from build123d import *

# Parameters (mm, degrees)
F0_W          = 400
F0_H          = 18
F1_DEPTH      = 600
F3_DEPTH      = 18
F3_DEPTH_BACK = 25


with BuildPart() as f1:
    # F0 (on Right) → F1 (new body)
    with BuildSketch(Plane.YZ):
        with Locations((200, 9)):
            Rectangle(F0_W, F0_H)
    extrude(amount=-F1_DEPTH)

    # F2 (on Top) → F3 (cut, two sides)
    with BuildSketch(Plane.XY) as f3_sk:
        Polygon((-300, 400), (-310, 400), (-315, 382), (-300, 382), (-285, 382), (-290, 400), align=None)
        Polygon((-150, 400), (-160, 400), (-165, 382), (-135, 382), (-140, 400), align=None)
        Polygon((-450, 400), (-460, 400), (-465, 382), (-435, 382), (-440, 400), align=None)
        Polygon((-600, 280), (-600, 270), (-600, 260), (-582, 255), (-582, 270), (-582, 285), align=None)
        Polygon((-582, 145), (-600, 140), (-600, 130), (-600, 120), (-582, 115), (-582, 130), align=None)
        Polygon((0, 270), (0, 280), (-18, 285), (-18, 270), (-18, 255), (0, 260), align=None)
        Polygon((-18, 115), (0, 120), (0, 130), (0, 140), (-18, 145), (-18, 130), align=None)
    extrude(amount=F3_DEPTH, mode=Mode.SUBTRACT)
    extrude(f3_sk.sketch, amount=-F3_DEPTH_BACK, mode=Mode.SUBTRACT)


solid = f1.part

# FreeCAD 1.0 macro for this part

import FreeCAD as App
import Part
import Sketcher

V = App.Vector

doc = App.newDocument("Part")
body = doc.addObject("PartDesign::Body", "Body")

sketch1 = doc.addObject("Sketcher::SketchObject", "Sketch")
body.addObject(sketch1)
sketch1.AttachmentSupport = (doc.YZ_Plane, [""])
sketch1.MapMode = "FlatFace"
sketch1.addGeometry([
    Part.LineSegment(V(0, 18, 0), V(0, 0, 0)),
    Part.LineSegment(V(0, 0, 0), V(400, 0, 0)),
    Part.LineSegment(V(400, 0, 0), V(400, 18, 0)),
    Part.LineSegment(V(400, 18, 0), V(0, 18, 0)),
], False)
sketch1.addConstraint([
    Sketcher.Constraint("Coincident", 0, 2, 1, 1),
    Sketcher.Constraint("Coincident", 1, 2, 2, 1),
    Sketcher.Constraint("Coincident", 2, 2, 3, 1),
    Sketcher.Constraint("Coincident", 3, 2, 0, 1),
    Sketcher.Constraint("Vertical", 0),
    Sketcher.Constraint("Horizontal", 1),
    Sketcher.Constraint("Vertical", 2),
    Sketcher.Constraint("Horizontal", 3),
    Sketcher.Constraint("Coincident", 0, 2, -1, 1),
    Sketcher.Constraint("DistanceX", 1, 1, 1, 2, 400.0),
    Sketcher.Constraint("DistanceY", 0, 2, 0, 1, 18.0),
])
pad1 = doc.addObject("PartDesign::Pad", "Pad")
body.addObject(pad1)
pad1.Profile = sketch1
pad1.Length = 600
pad1.Reversed = True

sketch2 = doc.addObject("Sketcher::SketchObject", "Sketch001")
body.addObject(sketch2)
sketch2.AttachmentSupport = (doc.XY_Plane, [""])
sketch2.MapMode = "FlatFace"
sketch2.addGeometry([
    Part.LineSegment(V(-310, 400, 0), V(-315, 382, 0)),
    Part.LineSegment(V(-315, 382, 0), V(-285, 382, 0)),
    Part.LineSegment(V(-285, 382, 0), V(-290, 400, 0)),
    Part.LineSegment(V(-290, 400, 0), V(-310, 400, 0)),
    Part.LineSegment(V(-160, 400, 0), V(-165, 382, 0)),
    Part.LineSegment(V(-165, 382, 0), V(-135, 382, 0)),
    Part.LineSegment(V(-135, 382, 0), V(-140, 400, 0)),
    Part.LineSegment(V(-140, 400, 0), V(-160, 400, 0)),
    Part.LineSegment(V(-460, 400, 0), V(-465, 382, 0)),
    Part.LineSegment(V(-465, 382, 0), V(-435, 382, 0)),
    Part.LineSegment(V(-435, 382, 0), V(-440, 400, 0)),
    Part.LineSegment(V(-440, 400, 0), V(-460, 400, 0)),
    Part.LineSegment(V(-600, 280, 0), V(-600, 260, 0)),
    Part.LineSegment(V(-600, 260, 0), V(-582, 255, 0)),
    Part.LineSegment(V(-582, 255, 0), V(-582, 285, 0)),
    Part.LineSegment(V(-582, 285, 0), V(-600, 280, 0)),
    Part.LineSegment(V(-582, 145, 0), V(-600, 140, 0)),
    Part.LineSegment(V(-600, 140, 0), V(-600, 120, 0)),
    Part.LineSegment(V(-600, 120, 0), V(-582, 115, 0)),
    Part.LineSegment(V(-582, 115, 0), V(-582, 145, 0)),
    Part.LineSegment(V(0, 280, 0), V(-18, 285, 0)),
    Part.LineSegment(V(-18, 285, 0), V(-18, 255, 0)),
    Part.LineSegment(V(-18, 255, 0), V(0, 260, 0)),
    Part.LineSegment(V(0, 260, 0), V(0, 280, 0)),
    Part.LineSegment(V(-18, 115, 0), V(0, 120, 0)),
    Part.LineSegment(V(0, 120, 0), V(0, 140, 0)),
    Part.LineSegment(V(0, 140, 0), V(-18, 145, 0)),
    Part.LineSegment(V(-18, 145, 0), V(-18, 115, 0)),
], False)
sketch2.addConstraint([
    Sketcher.Constraint("Coincident", 0, 2, 1, 1),
    Sketcher.Constraint("Coincident", 1, 2, 2, 1),
    Sketcher.Constraint("Coincident", 2, 2, 3, 1),
    Sketcher.Constraint("Coincident", 3, 2, 0, 1),
    Sketcher.Constraint("Coincident", 4, 2, 5, 1),
    Sketcher.Constraint("Coincident", 5, 2, 6, 1),
    Sketcher.Constraint("Coincident", 6, 2, 7, 1),
    Sketcher.Constraint("Coincident", 7, 2, 4, 1),
    Sketcher.Constraint("Coincident", 8, 2, 9, 1),
    Sketcher.Constraint("Coincident", 9, 2, 10, 1),
    Sketcher.Constraint("Coincident", 10, 2, 11, 1),
    Sketcher.Constraint("Coincident", 11, 2, 8, 1),
    Sketcher.Constraint("Coincident", 12, 2, 13, 1),
    Sketcher.Constraint("Coincident", 13, 2, 14, 1),
    Sketcher.Constraint("Coincident", 14, 2, 15, 1),
    Sketcher.Constraint("Coincident", 15, 2, 12, 1),
    Sketcher.Constraint("Coincident", 16, 2, 17, 1),
    Sketcher.Constraint("Coincident", 17, 2, 18, 1),
    Sketcher.Constraint("Coincident", 18, 2, 19, 1),
    Sketcher.Constraint("Coincident", 19, 2, 16, 1),
    Sketcher.Constraint("Coincident", 20, 2, 21, 1),
    Sketcher.Constraint("Coincident", 21, 2, 22, 1),
    Sketcher.Constraint("Coincident", 22, 2, 23, 1),
    Sketcher.Constraint("Coincident", 23, 2, 20, 1),
    Sketcher.Constraint("Coincident", 24, 2, 25, 1),
    Sketcher.Constraint("Coincident", 25, 2, 26, 1),
    Sketcher.Constraint("Coincident", 26, 2, 27, 1),
    Sketcher.Constraint("Coincident", 27, 2, 24, 1),
    Sketcher.Constraint("Horizontal", 1),
    Sketcher.Constraint("Horizontal", 3),
    Sketcher.Constraint("Horizontal", 5),
    Sketcher.Constraint("Horizontal", 7),
    Sketcher.Constraint("Horizontal", 9),
    Sketcher.Constraint("Horizontal", 11),
    Sketcher.Constraint("Vertical", 12),
    Sketcher.Constraint("Vertical", 14),
    Sketcher.Constraint("Vertical", 17),
    Sketcher.Constraint("Vertical", 19),
    Sketcher.Constraint("Vertical", 21),
    Sketcher.Constraint("Vertical", 23),
    Sketcher.Constraint("Vertical", 25),
    Sketcher.Constraint("Vertical", 27),
    Sketcher.Constraint("PointOnObject", 22, 2, -2),
    Sketcher.Constraint("PointOnObject", 24, 2, -2),
    Sketcher.Constraint("Parallel", 0, 4),
    Sketcher.Constraint("Parallel", 2, 6),
    Sketcher.Constraint("Parallel", 4, 8),
    Sketcher.Constraint("Parallel", 6, 10),
    Sketcher.Constraint("Perpendicular", 8, 13),
    Sketcher.Constraint("Perpendicular", 10, 15),
    Sketcher.Constraint("Parallel", 15, 16),
    Sketcher.Constraint("Parallel", 13, 18),
    Sketcher.Constraint("Parallel", 18, 20),
    Sketcher.Constraint("Parallel", 16, 22),
    Sketcher.Constraint("Parallel", 22, 24),
    Sketcher.Constraint("Parallel", 20, 26),
    Sketcher.Constraint("Horizontal", 1, 2, 4, 2),
    Sketcher.Constraint("Horizontal", 3, 2, 6, 2),
    Sketcher.Constraint("Horizontal", 5, 2, 8, 2),
    Sketcher.Constraint("Horizontal", 7, 2, 10, 2),
    Sketcher.Constraint("Horizontal", 14, 2, 20, 2),
    Sketcher.Constraint("Horizontal", 13, 2, 21, 2),
    Sketcher.Constraint("Horizontal", 12, 2, 22, 2),
    Sketcher.Constraint("Horizontal", 15, 2, 23, 2),
    Sketcher.Constraint("Horizontal", 17, 2, 24, 2),
    Sketcher.Constraint("Horizontal", 16, 2, 25, 2),
    Sketcher.Constraint("Horizontal", 19, 2, 26, 2),
    Sketcher.Constraint("Vertical", 15, 2, 16, 2),
    Sketcher.Constraint("Vertical", 14, 2, 18, 2),
    Sketcher.Constraint("Equal", 1, 5),
    Sketcher.Constraint("Equal", 5, 9),
    Sketcher.Constraint("Equal", 11, 12),
    Sketcher.Constraint("Equal", 9, 14),
    Sketcher.Constraint("Equal", 12, 17),
    Sketcher.Constraint("DistanceX", 1, 1, 1, 2, 30.0),
    Sketcher.Constraint("DistanceX", 3, 2, 3, 1, 20.0),
    Sketcher.Constraint("DistanceX", 0, 2, -1, 1, 315.0),
    Sketcher.Constraint("DistanceY", -1, 1, 0, 2, 382.0),
    Sketcher.Constraint("DistanceY", -1, 1, 2, 2, 400.0),
    Sketcher.Constraint("DistanceX", 4, 2, -1, 1, 165.0),
    Sketcher.Constraint("DistanceX", 8, 2, -1, 1, 465.0),
    Sketcher.Constraint("DistanceX", 12, 2, -1, 1, 600.0),
    Sketcher.Constraint("DistanceY", -1, 1, 12, 2, 260.0),
    Sketcher.Constraint("DistanceY", -1, 1, 16, 2, 140.0),
])
pocket1 = doc.addObject("PartDesign::Pocket", "Pocket")
body.addObject(pocket1)
pocket1.Profile = sketch2
pocket1.Type = "ThroughAll"
pocket1.Midplane = True

doc.recompute()
